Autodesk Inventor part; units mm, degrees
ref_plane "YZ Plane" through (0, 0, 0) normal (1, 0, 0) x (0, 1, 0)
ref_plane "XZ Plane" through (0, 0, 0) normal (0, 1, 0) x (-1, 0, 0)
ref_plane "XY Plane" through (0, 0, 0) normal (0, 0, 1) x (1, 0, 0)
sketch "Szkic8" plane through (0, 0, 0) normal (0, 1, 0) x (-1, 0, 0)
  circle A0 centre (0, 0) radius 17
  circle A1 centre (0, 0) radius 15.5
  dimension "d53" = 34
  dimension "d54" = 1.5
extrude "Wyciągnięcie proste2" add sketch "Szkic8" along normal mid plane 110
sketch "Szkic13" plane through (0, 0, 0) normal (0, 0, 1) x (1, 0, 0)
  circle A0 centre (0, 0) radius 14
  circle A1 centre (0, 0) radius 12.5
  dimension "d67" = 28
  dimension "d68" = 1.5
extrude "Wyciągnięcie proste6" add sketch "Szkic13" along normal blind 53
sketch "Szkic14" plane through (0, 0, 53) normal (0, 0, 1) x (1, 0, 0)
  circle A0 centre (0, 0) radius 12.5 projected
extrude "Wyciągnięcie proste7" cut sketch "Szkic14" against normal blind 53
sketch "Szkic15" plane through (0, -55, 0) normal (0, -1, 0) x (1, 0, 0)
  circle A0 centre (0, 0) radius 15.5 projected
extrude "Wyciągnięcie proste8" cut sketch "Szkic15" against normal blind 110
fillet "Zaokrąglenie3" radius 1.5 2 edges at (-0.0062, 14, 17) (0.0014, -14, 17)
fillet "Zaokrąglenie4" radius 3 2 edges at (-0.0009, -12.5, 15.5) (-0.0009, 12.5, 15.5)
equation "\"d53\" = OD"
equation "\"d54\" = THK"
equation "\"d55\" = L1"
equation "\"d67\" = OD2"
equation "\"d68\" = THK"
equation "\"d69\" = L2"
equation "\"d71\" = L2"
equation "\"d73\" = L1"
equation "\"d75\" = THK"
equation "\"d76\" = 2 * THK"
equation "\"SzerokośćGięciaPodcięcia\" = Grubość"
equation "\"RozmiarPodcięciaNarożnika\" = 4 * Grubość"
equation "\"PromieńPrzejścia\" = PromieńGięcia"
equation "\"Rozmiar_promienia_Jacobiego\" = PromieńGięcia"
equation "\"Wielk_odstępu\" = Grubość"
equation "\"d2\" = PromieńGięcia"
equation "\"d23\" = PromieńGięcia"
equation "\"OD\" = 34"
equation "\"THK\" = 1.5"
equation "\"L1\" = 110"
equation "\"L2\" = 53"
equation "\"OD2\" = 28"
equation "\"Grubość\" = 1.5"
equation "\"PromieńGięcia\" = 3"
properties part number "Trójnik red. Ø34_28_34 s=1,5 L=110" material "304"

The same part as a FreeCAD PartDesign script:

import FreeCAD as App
import Part
import Sketcher
Q = App.Units.Quantity


def edges_at(feature, points):
    """Names of the edges that pass closest to the given points."""
    edges = feature.Shape.Edges
    near = lambda p: min(range(len(edges)), key=lambda i: edges[i].distToShape(Part.Vertex(*p))[0])
    return sorted({f"Edge{near(p) + 1}" for p in points})

doc = App.newDocument("Part")
body = doc.addObject("PartDesign::Body", "Body")

sketch1 = doc.addObject("Sketcher::SketchObject", "Sketch")
body.addObject(sketch1)
sketch1.AttachmentSupport = (doc.XZ_Plane, [""])
sketch1.MapMode = "FlatFace"
sketch1.addGeometry([
    Part.Circle(App.Vector(0, 0, 0), App.Vector(0, 0, 1), 17),
    Part.Circle(App.Vector(0, 0, 0), App.Vector(0, 0, 1), 15.5),
], False)
sketch1.addConstraint([
    Sketcher.Constraint("Coincident", 0, 3, -1, 1),
    Sketcher.Constraint("Coincident", 1, 3, -1, 1),
    Sketcher.Constraint("Diameter", 0, Q("34 mm")),
    Sketcher.Constraint("Diameter", 1, Q("31 mm")),
])
pad1 = doc.addObject("PartDesign::Pad", "Pad")
body.addObject(pad1)
pad1.Profile = sketch1
pad1.Length = 110
pad1.Midplane = True

sketch2 = doc.addObject("Sketcher::SketchObject", "Sketch001")
body.addObject(sketch2)
sketch2.AttachmentSupport = (doc.XY_Plane, [""])
sketch2.MapMode = "FlatFace"
sketch2.addGeometry([
    Part.Circle(App.Vector(0, 0, 0), App.Vector(0, 0, 1), 14),
    Part.Circle(App.Vector(0, 0, 0), App.Vector(0, 0, 1), 12.5),
], False)
sketch2.addConstraint([
    Sketcher.Constraint("Coincident", 0, 3, -1, 1),
    Sketcher.Constraint("Coincident", 1, 3, -1, 1),
    Sketcher.Constraint("Diameter", 0, Q("28 mm")),
    Sketcher.Constraint("Diameter", 1, Q("25 mm")),
])
pad2 = doc.addObject("PartDesign::Pad", "Pad001")
body.addObject(pad2)
pad2.Profile = sketch2
pad2.Length = 53

sketch3 = doc.addObject("Sketcher::SketchObject", "Sketch002")
body.addObject(sketch3)
sketch3.AttachmentSupport = (doc.XY_Plane, [""])
sketch3.MapMode = "FlatFace"
sketch3.AttachmentOffset = App.Placement(App.Vector(0, 0, 53), App.Rotation())
sketch3.addGeometry(Part.Circle(App.Vector(0, 0, 0), App.Vector(0, 0, 1), 12.5), False)
sketch3.addConstraint([
    Sketcher.Constraint("Coincident", 0, 3, -1, 1),
    Sketcher.Constraint("Diameter", 0, Q("25 mm")),
])
pocket1 = doc.addObject("PartDesign::Pocket", "Pocket")
body.addObject(pocket1)
pocket1.Profile = sketch3
pocket1.Length = 53

sketch4 = doc.addObject("Sketcher::SketchObject", "Sketch003")
body.addObject(sketch4)
sketch4.AttachmentSupport = (doc.XZ_Plane, [""])
sketch4.MapMode = "FlatFace"
sketch4.AttachmentOffset = App.Placement(App.Vector(0, 0, 55), App.Rotation())
sketch4.addGeometry(Part.Circle(App.Vector(0, 0, 0), App.Vector(0, 0, 1), 15.5), False)
sketch4.addConstraint([
    Sketcher.Constraint("Coincident", 0, 3, -1, 1),
    Sketcher.Constraint("Diameter", 0, Q("31 mm")),
])
pocket2 = doc.addObject("PartDesign::Pocket", "Pocket001")
body.addObject(pocket2)
pocket2.Profile = sketch4
pocket2.Length = 110
doc.recompute()

fillet = doc.addObject("PartDesign::Fillet", "Fillet")
body.addObject(fillet)
fillet.Base = (pocket2, edges_at(pocket2, [(-0.006, 14, 17), (0.001, -14, 17)]))
fillet.Radius = 1.5
doc.recompute()

fillet2 = doc.addObject("PartDesign::Fillet", "Fillet001")
body.addObject(fillet2)
fillet2.Base = (fillet, edges_at(fillet, [(-0.001, -12.5, 15.5), (-0.001, 12.5, 15.5)]))
fillet2.Radius = 3

doc.recompute()
